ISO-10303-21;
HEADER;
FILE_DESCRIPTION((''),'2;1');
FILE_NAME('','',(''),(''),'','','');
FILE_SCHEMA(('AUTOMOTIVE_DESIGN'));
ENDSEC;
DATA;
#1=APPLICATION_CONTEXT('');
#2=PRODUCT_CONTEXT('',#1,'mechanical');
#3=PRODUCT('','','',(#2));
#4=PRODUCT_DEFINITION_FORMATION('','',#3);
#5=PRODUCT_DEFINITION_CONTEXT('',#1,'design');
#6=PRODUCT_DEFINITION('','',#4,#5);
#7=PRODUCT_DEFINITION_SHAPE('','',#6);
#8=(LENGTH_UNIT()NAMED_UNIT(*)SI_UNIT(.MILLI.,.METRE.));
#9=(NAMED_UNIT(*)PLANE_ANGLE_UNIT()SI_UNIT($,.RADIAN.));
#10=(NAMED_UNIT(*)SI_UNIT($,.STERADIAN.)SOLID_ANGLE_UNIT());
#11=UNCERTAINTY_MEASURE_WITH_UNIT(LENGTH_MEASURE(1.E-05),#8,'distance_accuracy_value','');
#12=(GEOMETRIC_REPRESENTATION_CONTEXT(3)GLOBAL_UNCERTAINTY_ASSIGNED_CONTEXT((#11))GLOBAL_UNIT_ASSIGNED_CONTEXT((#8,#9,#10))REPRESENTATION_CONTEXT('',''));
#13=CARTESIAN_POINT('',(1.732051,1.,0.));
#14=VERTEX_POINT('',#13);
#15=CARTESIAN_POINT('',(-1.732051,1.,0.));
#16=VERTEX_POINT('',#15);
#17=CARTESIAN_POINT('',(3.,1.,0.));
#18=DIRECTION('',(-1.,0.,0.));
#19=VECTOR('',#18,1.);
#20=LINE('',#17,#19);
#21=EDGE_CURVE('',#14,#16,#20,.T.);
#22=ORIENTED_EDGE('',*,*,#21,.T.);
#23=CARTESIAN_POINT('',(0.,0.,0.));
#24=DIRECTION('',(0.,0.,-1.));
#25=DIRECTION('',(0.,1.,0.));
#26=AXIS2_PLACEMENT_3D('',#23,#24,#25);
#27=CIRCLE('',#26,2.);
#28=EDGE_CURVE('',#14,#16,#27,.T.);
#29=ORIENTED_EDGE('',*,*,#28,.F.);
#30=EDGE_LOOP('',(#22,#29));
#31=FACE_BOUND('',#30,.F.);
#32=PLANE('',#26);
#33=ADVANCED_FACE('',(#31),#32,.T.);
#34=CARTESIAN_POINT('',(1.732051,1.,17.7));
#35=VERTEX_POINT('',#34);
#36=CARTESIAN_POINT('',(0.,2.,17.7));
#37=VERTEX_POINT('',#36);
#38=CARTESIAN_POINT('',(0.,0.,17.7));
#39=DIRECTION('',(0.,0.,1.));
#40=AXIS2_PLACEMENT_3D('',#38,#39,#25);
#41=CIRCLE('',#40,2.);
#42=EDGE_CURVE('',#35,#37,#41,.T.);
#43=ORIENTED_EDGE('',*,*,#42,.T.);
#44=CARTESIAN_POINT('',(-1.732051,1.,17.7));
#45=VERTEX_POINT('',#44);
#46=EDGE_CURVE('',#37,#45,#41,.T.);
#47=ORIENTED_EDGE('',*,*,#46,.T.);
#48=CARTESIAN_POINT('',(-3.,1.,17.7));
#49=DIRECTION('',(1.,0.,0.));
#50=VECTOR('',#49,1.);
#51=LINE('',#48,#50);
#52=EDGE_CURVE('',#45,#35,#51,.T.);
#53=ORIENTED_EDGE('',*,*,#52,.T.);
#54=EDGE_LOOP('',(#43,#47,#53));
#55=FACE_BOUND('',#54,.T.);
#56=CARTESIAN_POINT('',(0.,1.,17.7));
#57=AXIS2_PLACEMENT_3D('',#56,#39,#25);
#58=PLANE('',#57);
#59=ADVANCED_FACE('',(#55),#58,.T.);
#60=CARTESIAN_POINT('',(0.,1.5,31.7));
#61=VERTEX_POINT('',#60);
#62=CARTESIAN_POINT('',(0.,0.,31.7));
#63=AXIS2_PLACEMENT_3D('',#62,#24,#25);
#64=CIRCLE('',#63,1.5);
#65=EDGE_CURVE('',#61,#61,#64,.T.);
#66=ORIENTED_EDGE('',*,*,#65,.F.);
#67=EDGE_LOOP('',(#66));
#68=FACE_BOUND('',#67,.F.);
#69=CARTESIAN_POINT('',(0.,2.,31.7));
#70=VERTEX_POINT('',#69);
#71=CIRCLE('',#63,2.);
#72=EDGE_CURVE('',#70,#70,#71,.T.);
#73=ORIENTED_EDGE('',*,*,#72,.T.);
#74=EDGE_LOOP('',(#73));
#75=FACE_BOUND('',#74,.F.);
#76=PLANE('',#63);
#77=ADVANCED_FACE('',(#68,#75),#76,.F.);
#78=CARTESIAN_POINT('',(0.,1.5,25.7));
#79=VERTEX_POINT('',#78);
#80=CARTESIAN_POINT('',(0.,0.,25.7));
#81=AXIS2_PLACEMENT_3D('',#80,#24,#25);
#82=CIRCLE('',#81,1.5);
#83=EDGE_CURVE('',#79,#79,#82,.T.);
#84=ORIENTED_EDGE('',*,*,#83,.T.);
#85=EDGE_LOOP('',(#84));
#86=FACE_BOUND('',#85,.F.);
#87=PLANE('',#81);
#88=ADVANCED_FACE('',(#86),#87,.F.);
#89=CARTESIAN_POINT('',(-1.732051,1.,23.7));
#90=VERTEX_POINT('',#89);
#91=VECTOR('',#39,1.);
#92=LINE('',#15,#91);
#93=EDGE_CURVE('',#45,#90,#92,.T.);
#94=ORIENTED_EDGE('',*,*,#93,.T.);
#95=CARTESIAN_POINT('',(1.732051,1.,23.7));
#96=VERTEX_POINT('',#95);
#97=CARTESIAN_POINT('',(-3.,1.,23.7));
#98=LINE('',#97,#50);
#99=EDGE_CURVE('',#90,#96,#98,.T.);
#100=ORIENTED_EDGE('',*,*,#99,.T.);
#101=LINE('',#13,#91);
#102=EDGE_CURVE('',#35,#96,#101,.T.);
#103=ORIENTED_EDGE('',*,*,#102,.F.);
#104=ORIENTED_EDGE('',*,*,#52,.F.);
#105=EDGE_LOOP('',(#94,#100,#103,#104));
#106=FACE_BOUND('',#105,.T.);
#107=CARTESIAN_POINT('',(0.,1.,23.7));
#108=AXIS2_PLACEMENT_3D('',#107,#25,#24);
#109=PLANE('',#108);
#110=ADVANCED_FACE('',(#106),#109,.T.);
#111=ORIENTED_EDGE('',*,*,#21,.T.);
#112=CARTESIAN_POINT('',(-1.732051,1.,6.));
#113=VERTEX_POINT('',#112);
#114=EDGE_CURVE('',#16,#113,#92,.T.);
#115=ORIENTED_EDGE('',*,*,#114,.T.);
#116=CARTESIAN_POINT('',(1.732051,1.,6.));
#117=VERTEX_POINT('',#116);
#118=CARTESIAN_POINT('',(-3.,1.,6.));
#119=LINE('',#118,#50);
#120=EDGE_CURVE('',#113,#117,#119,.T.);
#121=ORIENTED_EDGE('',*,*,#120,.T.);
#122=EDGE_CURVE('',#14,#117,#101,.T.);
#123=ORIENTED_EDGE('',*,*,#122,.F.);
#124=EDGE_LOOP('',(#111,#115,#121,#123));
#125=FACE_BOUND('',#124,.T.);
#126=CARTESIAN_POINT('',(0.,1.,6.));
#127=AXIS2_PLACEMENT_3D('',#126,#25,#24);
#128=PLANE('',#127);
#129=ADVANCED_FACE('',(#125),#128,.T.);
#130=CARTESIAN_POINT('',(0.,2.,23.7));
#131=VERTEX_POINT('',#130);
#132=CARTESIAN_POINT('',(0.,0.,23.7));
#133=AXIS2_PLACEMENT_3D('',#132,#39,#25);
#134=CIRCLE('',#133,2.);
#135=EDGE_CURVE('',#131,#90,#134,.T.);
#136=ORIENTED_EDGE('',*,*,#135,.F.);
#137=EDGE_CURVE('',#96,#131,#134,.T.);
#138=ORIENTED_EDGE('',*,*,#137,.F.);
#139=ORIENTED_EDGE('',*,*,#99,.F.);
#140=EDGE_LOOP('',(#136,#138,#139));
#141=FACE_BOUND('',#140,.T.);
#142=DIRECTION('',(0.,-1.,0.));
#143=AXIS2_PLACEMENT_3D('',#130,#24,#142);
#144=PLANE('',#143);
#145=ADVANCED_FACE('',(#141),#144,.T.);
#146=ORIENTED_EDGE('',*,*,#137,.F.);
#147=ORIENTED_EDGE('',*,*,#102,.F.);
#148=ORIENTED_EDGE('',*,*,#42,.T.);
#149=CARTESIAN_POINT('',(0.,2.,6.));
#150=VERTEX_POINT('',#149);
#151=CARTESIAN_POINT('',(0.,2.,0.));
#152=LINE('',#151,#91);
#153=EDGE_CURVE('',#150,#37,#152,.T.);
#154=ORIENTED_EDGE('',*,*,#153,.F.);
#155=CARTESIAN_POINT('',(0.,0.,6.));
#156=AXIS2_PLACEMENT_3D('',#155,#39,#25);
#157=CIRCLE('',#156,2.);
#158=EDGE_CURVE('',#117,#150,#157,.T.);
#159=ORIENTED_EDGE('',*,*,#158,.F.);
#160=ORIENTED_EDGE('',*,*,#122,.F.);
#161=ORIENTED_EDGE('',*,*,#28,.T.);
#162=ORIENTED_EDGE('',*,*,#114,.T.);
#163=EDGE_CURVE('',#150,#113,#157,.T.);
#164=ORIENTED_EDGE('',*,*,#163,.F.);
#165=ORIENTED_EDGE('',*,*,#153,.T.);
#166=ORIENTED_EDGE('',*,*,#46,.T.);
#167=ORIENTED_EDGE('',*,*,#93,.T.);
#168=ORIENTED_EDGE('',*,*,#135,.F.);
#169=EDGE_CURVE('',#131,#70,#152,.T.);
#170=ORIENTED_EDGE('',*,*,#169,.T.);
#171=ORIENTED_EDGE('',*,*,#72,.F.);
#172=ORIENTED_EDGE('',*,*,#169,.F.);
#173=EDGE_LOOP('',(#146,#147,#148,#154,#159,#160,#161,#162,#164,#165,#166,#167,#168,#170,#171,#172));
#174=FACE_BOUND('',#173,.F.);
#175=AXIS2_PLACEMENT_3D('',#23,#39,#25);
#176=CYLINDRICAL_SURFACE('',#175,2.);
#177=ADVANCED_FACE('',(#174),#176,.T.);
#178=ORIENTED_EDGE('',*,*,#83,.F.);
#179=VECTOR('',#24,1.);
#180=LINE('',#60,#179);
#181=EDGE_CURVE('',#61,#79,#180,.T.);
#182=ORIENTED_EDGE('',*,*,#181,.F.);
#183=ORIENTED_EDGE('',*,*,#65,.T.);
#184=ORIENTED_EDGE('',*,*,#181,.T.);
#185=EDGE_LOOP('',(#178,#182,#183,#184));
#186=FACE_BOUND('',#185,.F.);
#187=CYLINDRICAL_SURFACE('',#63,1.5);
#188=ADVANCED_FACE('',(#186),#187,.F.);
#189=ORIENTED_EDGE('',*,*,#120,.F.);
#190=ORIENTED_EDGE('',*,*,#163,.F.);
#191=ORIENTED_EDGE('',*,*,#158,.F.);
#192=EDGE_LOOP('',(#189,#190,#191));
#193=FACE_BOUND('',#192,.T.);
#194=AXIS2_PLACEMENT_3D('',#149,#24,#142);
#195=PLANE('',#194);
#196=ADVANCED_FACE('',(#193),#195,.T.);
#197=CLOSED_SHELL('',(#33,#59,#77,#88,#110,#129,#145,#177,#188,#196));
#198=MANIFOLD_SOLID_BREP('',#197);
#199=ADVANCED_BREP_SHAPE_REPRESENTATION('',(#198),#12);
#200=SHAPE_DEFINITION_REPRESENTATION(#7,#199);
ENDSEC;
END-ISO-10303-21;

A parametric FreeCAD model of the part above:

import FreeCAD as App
import Part
import Sketcher
from FreeCAD import Vector

doc = App.newDocument("Part")
body = doc.addObject("PartDesign::Body", "Body")

sketch1 = body.newObject("Sketcher::SketchObject", "Sketch")
sketch1.AttachmentSupport = (doc.getObject("YZ_Plane"), [""])
sketch1.MapMode = "FlatFace"
sketch1.addGeometry(Part.LineSegment(Vector(0, 25.7, 0), Vector(0, 0, 0)), False)
sketch1.addGeometry(Part.LineSegment(Vector(0, 0, 0), Vector(2, 0, 0)), False)
sketch1.addGeometry(Part.LineSegment(Vector(2, 0, 0), Vector(2, 31.7, 0)), False)
sketch1.addGeometry(Part.LineSegment(Vector(2, 31.7, 0), Vector(1.5, 31.7, 0)), False)
sketch1.addGeometry(Part.LineSegment(Vector(1.5, 31.7, 0), Vector(1.5, 25.7, 0)), False)
sketch1.addGeometry(Part.LineSegment(Vector(1.5, 25.7, 0), Vector(0, 25.7, 0)), False)
sketch1.addConstraint(Sketcher.Constraint("Coincident", 0, 2, 1, 1))
sketch1.addConstraint(Sketcher.Constraint("Coincident", 1, 2, 2, 1))
sketch1.addConstraint(Sketcher.Constraint("Coincident", 2, 2, 3, 1))
sketch1.addConstraint(Sketcher.Constraint("Coincident", 3, 2, 4, 1))
sketch1.addConstraint(Sketcher.Constraint("Coincident", 4, 2, 5, 1))
sketch1.addConstraint(Sketcher.Constraint("Coincident", 5, 2, 0, 1))
sketch1.addConstraint(Sketcher.Constraint("Vertical", 0))
sketch1.addConstraint(Sketcher.Constraint("Horizontal", 1))
sketch1.addConstraint(Sketcher.Constraint("Vertical", 2))
sketch1.addConstraint(Sketcher.Constraint("Horizontal", 3))
sketch1.addConstraint(Sketcher.Constraint("Vertical", 4))
sketch1.addConstraint(Sketcher.Constraint("Horizontal", 5))
sketch1.addConstraint(Sketcher.Constraint("Coincident", 0, 2, -1, 1))
sketch1.addConstraint(Sketcher.Constraint("DistanceX", 1, 1, 1, 2, 2.0))
sketch1.addConstraint(Sketcher.Constraint("DistanceY", 4, 2, 4, 1, 6.0))
sketch1.addConstraint(Sketcher.Constraint("DistanceX", 3, 2, 3, 1, 0.5))
sketch1.addConstraint(Sketcher.Constraint("DistanceY", 2, 1, 2, 2, 31.7))
revolution = body.newObject("PartDesign::Revolution", "Revolution")
revolution.Profile = sketch1
revolution.ReferenceAxis = (sketch1, ["V_Axis"])
revolution.Angle = 360

sketch2 = body.newObject("Sketcher::SketchObject", "Sketch001")
sketch2.AttachmentSupport = (doc.getObject("YZ_Plane"), [""])
sketch2.MapMode = "FlatFace"
sketch2.addGeometry(Part.LineSegment(Vector(2, 0, 0), Vector(2, 6, 0)), False)
sketch2.addGeometry(Part.LineSegment(Vector(2, 6, 0), Vector(1, 6, 0)), False)
sketch2.addGeometry(Part.LineSegment(Vector(1, 6, 0), Vector(1, 0, 0)), False)
sketch2.addGeometry(Part.LineSegment(Vector(1, 0, 0), Vector(2, 0, 0)), False)
sketch2.addConstraint(Sketcher.Constraint("Coincident", 0, 2, 1, 1))
sketch2.addConstraint(Sketcher.Constraint("Coincident", 1, 2, 2, 1))
sketch2.addConstraint(Sketcher.Constraint("Coincident", 2, 2, 3, 1))
sketch2.addConstraint(Sketcher.Constraint("Coincident", 3, 2, 0, 1))
sketch2.addConstraint(Sketcher.Constraint("Vertical", 0))
sketch2.addConstraint(Sketcher.Constraint("Horizontal", 1))
sketch2.addConstraint(Sketcher.Constraint("Vertical", 2))
sketch2.addConstraint(Sketcher.Constraint("Horizontal", 3))
sketch2.addConstraint(Sketcher.Constraint("PointOnObject", 2, 2, -1))
sketch2.addConstraint(Sketcher.Constraint("DistanceX", 1, 2, 1, 1, 1.0))
sketch2.addConstraint(Sketcher.Constraint("DistanceY", 0, 1, 0, 2, 6.0))
sketch2.addConstraint(Sketcher.Constraint("DistanceX", -1, 1, 1, 2, 1.0))
pocket1 = body.newObject("PartDesign::Pocket", "Pocket")
pocket1.Profile = sketch2
pocket1.Length = 6
pocket1.Midplane = True

sketch3 = body.newObject("Sketcher::SketchObject", "Sketch002")
sketch3.AttachmentSupport = (doc.getObject("YZ_Plane"), [""])
sketch3.MapMode = "FlatFace"
sketch3.addGeometry(Part.LineSegment(Vector(2, 17.7, 0), Vector(2, 23.7, 0)), False)
sketch3.addGeometry(Part.LineSegment(Vector(2, 23.7, 0), Vector(1, 23.7, 0)), False)
sketch3.addGeometry(Part.LineSegment(Vector(1, 23.7, 0), Vector(1, 17.7, 0)), False)
sketch3.addGeometry(Part.LineSegment(Vector(1, 17.7, 0), Vector(2, 17.7, 0)), False)
sketch3.addConstraint(Sketcher.Constraint("Coincident", 0, 2, 1, 1))
sketch3.addConstraint(Sketcher.Constraint("Coincident", 1, 2, 2, 1))
sketch3.addConstraint(Sketcher.Constraint("Coincident", 2, 2, 3, 1))
sketch3.addConstraint(Sketcher.Constraint("Coincident", 3, 2, 0, 1))
sketch3.addConstraint(Sketcher.Constraint("Vertical", 0))
sketch3.addConstraint(Sketcher.Constraint("Horizontal", 1))
sketch3.addConstraint(Sketcher.Constraint("Vertical", 2))
sketch3.addConstraint(Sketcher.Constraint("Horizontal", 3))
sketch3.addConstraint(Sketcher.Constraint("DistanceX", 1, 2, 1, 1, 1.0))
sketch3.addConstraint(Sketcher.Constraint("DistanceY", 0, 1, 0, 2, 6.0))
sketch3.addConstraint(Sketcher.Constraint("DistanceX", -1, 1, 1, 2, 1.0))
sketch3.addConstraint(Sketcher.Constraint("DistanceY", -1, 1, 0, 2, 23.7))
pocket2 = body.newObject("PartDesign::Pocket", "Pocket001")
pocket2.Profile = sketch3
pocket2.Length = 6
pocket2.Midplane = True

doc.recompute()
